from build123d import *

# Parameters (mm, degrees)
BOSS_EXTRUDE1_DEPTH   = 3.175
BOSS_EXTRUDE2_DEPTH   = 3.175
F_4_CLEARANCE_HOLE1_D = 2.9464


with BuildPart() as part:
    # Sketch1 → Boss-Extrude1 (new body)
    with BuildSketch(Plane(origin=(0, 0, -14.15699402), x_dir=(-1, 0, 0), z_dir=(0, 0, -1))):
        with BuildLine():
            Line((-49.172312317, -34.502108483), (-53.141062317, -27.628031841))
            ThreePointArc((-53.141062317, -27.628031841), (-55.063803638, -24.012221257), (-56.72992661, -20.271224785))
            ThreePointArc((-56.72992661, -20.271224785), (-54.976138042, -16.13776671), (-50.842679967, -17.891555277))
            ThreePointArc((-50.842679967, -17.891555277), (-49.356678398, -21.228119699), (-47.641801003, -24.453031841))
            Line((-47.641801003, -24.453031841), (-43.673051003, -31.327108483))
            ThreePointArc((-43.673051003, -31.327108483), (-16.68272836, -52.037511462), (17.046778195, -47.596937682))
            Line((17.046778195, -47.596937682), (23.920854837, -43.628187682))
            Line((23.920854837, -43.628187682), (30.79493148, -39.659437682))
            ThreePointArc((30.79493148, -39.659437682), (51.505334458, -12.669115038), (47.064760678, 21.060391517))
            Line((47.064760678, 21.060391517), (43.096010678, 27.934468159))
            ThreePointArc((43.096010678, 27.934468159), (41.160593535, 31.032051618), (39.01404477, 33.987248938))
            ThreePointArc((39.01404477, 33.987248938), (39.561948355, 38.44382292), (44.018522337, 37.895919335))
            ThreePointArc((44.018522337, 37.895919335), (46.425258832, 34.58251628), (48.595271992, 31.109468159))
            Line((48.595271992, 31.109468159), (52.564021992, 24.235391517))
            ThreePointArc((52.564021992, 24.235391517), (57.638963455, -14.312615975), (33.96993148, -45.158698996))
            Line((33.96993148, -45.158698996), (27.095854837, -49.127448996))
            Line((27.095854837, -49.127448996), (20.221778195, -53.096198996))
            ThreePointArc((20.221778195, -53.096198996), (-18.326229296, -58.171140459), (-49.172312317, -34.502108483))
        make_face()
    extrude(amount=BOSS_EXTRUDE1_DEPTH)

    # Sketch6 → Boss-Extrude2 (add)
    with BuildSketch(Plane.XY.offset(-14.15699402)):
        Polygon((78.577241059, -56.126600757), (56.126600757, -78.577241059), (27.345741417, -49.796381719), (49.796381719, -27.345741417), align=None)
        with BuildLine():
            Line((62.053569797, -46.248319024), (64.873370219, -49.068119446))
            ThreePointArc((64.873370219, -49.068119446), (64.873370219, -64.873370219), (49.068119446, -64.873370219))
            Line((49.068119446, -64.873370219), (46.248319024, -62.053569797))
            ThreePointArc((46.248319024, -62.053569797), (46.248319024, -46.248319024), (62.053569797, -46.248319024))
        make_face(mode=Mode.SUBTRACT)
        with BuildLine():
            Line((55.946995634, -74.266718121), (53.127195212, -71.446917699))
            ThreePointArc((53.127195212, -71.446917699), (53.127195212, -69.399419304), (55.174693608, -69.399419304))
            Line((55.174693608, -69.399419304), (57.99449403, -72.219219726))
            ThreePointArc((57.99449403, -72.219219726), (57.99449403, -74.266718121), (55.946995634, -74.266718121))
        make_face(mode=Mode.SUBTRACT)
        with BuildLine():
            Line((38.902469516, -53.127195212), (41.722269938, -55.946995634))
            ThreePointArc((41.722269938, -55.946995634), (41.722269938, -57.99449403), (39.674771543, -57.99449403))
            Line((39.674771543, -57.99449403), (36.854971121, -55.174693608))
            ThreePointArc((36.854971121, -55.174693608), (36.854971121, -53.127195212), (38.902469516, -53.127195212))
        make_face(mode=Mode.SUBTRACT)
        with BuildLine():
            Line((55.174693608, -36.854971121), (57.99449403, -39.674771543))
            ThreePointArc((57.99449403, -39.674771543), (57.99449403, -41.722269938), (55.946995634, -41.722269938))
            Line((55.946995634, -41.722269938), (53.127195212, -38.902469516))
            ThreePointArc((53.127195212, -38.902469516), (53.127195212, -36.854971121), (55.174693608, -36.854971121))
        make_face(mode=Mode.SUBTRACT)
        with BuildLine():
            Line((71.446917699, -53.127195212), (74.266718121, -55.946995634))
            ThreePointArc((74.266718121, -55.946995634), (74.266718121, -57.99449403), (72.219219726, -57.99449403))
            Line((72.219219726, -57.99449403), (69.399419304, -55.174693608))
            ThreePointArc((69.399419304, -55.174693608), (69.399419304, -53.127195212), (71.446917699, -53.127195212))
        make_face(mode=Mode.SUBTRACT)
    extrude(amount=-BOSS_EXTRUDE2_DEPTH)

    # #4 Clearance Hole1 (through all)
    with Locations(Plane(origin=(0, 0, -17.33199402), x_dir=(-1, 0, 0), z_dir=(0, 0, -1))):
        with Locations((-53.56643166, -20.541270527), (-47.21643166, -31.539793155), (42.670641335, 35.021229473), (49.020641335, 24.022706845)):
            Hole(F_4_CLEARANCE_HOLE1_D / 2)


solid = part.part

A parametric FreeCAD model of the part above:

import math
import FreeCAD as App
import Part
import Sketcher

V = App.Vector
Q = App.Units.Quantity


def add_polygon(sketch, points):
    """Adds a closed chain of lines whose ends are joined by coincident constraints."""
    first, n = sketch.GeometryCount, len(points)
    for a, b in zip(points, points[1:] + points[:1]):
        sketch.addGeometry(Part.LineSegment(App.Vector(*a, 0), App.Vector(*b, 0)), False)
    for i in range(n):
        sketch.addConstraint(Sketcher.Constraint("Coincident", first + i, 2, first + (i + 1) % n, 1))

doc = App.newDocument("Part")
body = doc.addObject("PartDesign::Body", "Body")

sketch1 = body.newObject("Sketcher::SketchObject", "Sketch")
sketch1.AttachmentSupport = (doc.getObject("XY_Plane"), [""])
sketch1.MapMode = "FlatFace"
sketch1.AttachmentOffset = App.Placement(V(0, 0, -14.156994), App.Rotation())
sketch1.addGeometry([
    Part.LineSegment(V(53.1, -27.6, 0), V(49.2, -34.5, 0)),
    Part.ArcOfCircle(Part.Circle(V(5.2, -9.1, 0), V(0, 0, 1), 50.8), math.radians(-120), math.radians(-30)),
    Part.LineSegment(V(-20.2, -53.1, 0), V(-27.1, -49.1, 0)),
    Part.LineSegment(V(-27.1, -49.1, 0), V(-34, -45.2, 0)),
    Part.ArcOfCircle(Part.Circle(V(-8.6, -1.2, 0), V(0, 0, 1), 50.8), math.radians(150), math.radians(240)),
    Part.LineSegment(V(-52.6, 24.2, 0), V(-48.6, 31.1, 0)),
    Part.ArcOfCircle(Part.Circle(V(2.3, 1.7, 0), V(0, 0, 1), 58.7), math.radians(142.01), math.radians(150)),
    Part.ArcOfCircle(Part.Circle(V(-41.5, 35.9, 0), V(0, 0, 1), 3.2), math.radians(-38), math.radians(142)),
    Part.ArcOfCircle(Part.Circle(V(2.3, 1.7, 0), V(0, 0, 1), 52.4), math.radians(142.01), math.radians(150)),
    Part.LineSegment(V(-43.1, 27.9, 0), V(-47.1, 21.1, 0)),
    Part.ArcOfCircle(Part.Circle(V(-8.6, -1.2, 0), V(0, 0, 1), 44.5), math.radians(150), math.radians(240)),
    Part.LineSegment(V(-30.8, -39.7, 0), V(-23.9, -43.6, 0)),
    Part.LineSegment(V(-23.9, -43.6, 0), V(-17, -47.6, 0)),
    Part.ArcOfCircle(Part.Circle(V(5.2, -9.1, 0), V(0, 0, 1), 44.5), math.radians(-120), math.radians(-30)),
    Part.LineSegment(V(43.7, -31.3, 0), V(47.6, -24.5, 0)),
    Part.ArcOfCircle(Part.Circle(V(2.3, 1.7, 0), V(0, 0, 1), 52.4), math.radians(-30), math.radians(-22.01)),
    Part.ArcOfCircle(Part.Circle(V(53.8, -19.1, 0), V(0, 0, 1), 3.2), math.radians(-22), math.radians(158)),
    Part.ArcOfCircle(Part.Circle(V(2.3, 1.7, 0), V(0, 0, 1), 58.7), math.radians(-30), math.radians(-22.01)),
], False)
sketch1.addConstraint([
    Sketcher.Constraint("Tangent", 0, 2, 1, 2),
    Sketcher.Constraint("Tangent", 1, 1, 2, 1),
    Sketcher.Constraint("Coincident", 2, 2, 3, 1),
    Sketcher.Constraint("Tangent", 3, 2, 4, 2),
    Sketcher.Constraint("Tangent", 4, 1, 5, 1),
    Sketcher.Constraint("Tangent", 5, 2, 6, 2),
    Sketcher.Constraint("Tangent", 6, 1, 7, 2),
    Sketcher.Constraint("Tangent", 7, 1, 8, 1),
    Sketcher.Constraint("Tangent", 8, 2, 9, 1),
    Sketcher.Constraint("Tangent", 9, 2, 10, 1),
    Sketcher.Constraint("Tangent", 10, 2, 11, 1),
    Sketcher.Constraint("Coincident", 11, 2, 12, 1),
    Sketcher.Constraint("Tangent", 12, 2, 13, 1),
    Sketcher.Constraint("Tangent", 13, 2, 14, 1),
    Sketcher.Constraint("Tangent", 14, 2, 15, 1),
    Sketcher.Constraint("Tangent", 15, 2, 16, 2),
    Sketcher.Constraint("Tangent", 16, 1, 17, 2),
    Sketcher.Constraint("Tangent", 17, 1, 0, 1),
    Sketcher.Constraint("Coincident", 8, 3, 6, 3),
    Sketcher.Constraint("Coincident", 10, 3, 4, 3),
    Sketcher.Constraint("Coincident", 13, 3, 1, 3),
    Sketcher.Constraint("Coincident", 15, 3, 6, 3),
    Sketcher.Constraint("Coincident", 17, 3, 6, 3),
    Sketcher.Constraint("Equal", 1, 4),
    Sketcher.Constraint("Equal", 10, 13),
    Sketcher.Constraint("Equal", 8, 15),
    Sketcher.Constraint("Equal", 7, 16),
    Sketcher.Constraint("Perpendicular", 0, 2),
    Sketcher.Constraint("Parallel", 2, 3),
    Sketcher.Constraint("Perpendicular", 3, 5),
    Sketcher.Constraint("Parallel", 5, 9),
    Sketcher.Constraint("Perpendicular", 9, 11),
    Sketcher.Constraint("Equal", 0, 2),
    Sketcher.Constraint("Equal", 2, 3),
    Sketcher.Constraint("Equal", 9, 11),
    Sketcher.Constraint("Radius", 1, Q("2 in")),
    Sketcher.Constraint("Radius", 10, Q("1.75 in")),
    Sketcher.Constraint("Angle", 0, Q("-120 deg")),
    Sketcher.Constraint("Radius", 6, Q("2.3125 in")),
    Sketcher.Constraint("DistanceY", 1, 1, -1, 1, 53.096199),
    Sketcher.Constraint("DistanceX", -1, 1, 14, 2, 47.641801),
    Sketcher.Constraint("DistanceX", 4, 1, 6, 1, 8.5455),
    Sketcher.Constraint("DistanceY", 16, 3, -1, 1, 19.08139),
])
pad1 = body.newObject("PartDesign::Pad", "Pad")
pad1.Profile = sketch1
pad1.Length = Q("0.125 in")
pad1.Reversed = True

sketch2 = body.newObject("Sketcher::SketchObject", "Sketch001")
sketch2.AttachmentSupport = (doc.getObject("XY_Plane"), [""])
sketch2.MapMode = "FlatFace"
sketch2.AttachmentOffset = App.Placement(V(0, 0, -14.156994), App.Rotation())
add_polygon(sketch2, [(56.1, -78.6), (78.6, -56.1), (49.8, -27.3), (27.3, -49.8)])
sketch2.addGeometry(Part.LineSegment(V(62.1, -46.2, 0), V(64.9, -49.1, 0)), False)
sketch2.addGeometry(Part.ArcOfCircle(Part.Circle(V(57, -57, 0), V(0, 0, 1), 11.2), math.radians(-135), math.radians(45)), False)
sketch2.addGeometry(Part.LineSegment(V(49.1, -64.9, 0), V(46.2, -62.1, 0)), False)
sketch2.addGeometry(Part.ArcOfCircle(Part.Circle(V(54.2, -54.2, 0), V(0, 0, 1), 11.2), math.radians(45), math.radians(225)), False)
sketch2.addGeometry(Part.LineSegment(V(55.9, -74.3, 0), V(53.1, -71.4, 0)), False)
sketch2.addGeometry(Part.ArcOfCircle(Part.Circle(V(54.2, -70.4, 0), V(0, 0, 1), 1.4), math.radians(45), math.radians(225)), False)
sketch2.addGeometry(Part.LineSegment(V(55.2, -69.4, 0), V(58, -72.2, 0)), False)
sketch2.addGeometry(Part.ArcOfCircle(Part.Circle(V(57, -73.2, 0), V(0, 0, 1), 1.4), math.radians(-135), math.radians(45)), False)
sketch2.addGeometry(Part.LineSegment(V(71.4, -53.1, 0), V(74.3, -55.9, 0)), False)
sketch2.addGeometry(Part.ArcOfCircle(Part.Circle(V(73.2, -57, 0), V(0, 0, 1), 1.4), math.radians(-135), math.radians(45)), False)
sketch2.addGeometry(Part.LineSegment(V(72.2, -58, 0), V(69.4, -55.2, 0)), False)
sketch2.addGeometry(Part.ArcOfCircle(Part.Circle(V(70.4, -54.2, 0), V(0, 0, 1), 1.4), math.radians(45), math.radians(225)), False)
sketch2.addGeometry(Part.LineSegment(V(38.9, -53.1, 0), V(41.7, -55.9, 0)), False)
sketch2.addGeometry(Part.ArcOfCircle(Part.Circle(V(40.7, -57, 0), V(0, 0, 1), 1.4), math.radians(-135), math.radians(45)), False)
sketch2.addGeometry(Part.LineSegment(V(39.7, -58, 0), V(36.9, -55.2, 0)), False)
sketch2.addGeometry(Part.ArcOfCircle(Part.Circle(V(37.9, -54.2, 0), V(0, 0, 1), 1.4), math.radians(45), math.radians(225)), False)
sketch2.addGeometry(Part.LineSegment(V(55.2, -36.9, 0), V(58, -39.7, 0)), False)
sketch2.addGeometry(Part.ArcOfCircle(Part.Circle(V(57, -40.7, 0), V(0, 0, 1), 1.4), math.radians(-135), math.radians(45)), False)
sketch2.addGeometry(Part.LineSegment(V(55.9, -41.7, 0), V(53.1, -38.9, 0)), False)
sketch2.addGeometry(Part.ArcOfCircle(Part.Circle(V(54.2, -37.9, 0), V(0, 0, 1), 1.4), math.radians(45), math.radians(225)), False)
sketch2.addConstraint([
    Sketcher.Constraint("Tangent", 4, 2, 5, 2),
    Sketcher.Constraint("Tangent", 5, 1, 6, 1),
    Sketcher.Constraint("Tangent", 6, 2, 7, 2),
    Sketcher.Constraint("Tangent", 7, 1, 4, 1),
    Sketcher.Constraint("Tangent", 8, 2, 9, 2),
    Sketcher.Constraint("Tangent", 9, 1, 10, 1),
    Sketcher.Constraint("Tangent", 10, 2, 11, 2),
    Sketcher.Constraint("Tangent", 11, 1, 8, 1),
    Sketcher.Constraint("Tangent", 12, 2, 13, 2),
    Sketcher.Constraint("Tangent", 13, 1, 14, 1),
    Sketcher.Constraint("Tangent", 14, 2, 15, 2),
    Sketcher.Constraint("Tangent", 15, 1, 12, 1),
    Sketcher.Constraint("Tangent", 16, 2, 17, 2),
    Sketcher.Constraint("Tangent", 17, 1, 18, 1),
    Sketcher.Constraint("Tangent", 18, 2, 19, 2),
    Sketcher.Constraint("Tangent", 19, 1, 16, 1),
    Sketcher.Constraint("Tangent", 20, 2, 21, 2),
    Sketcher.Constraint("Tangent", 21, 1, 22, 1),
    Sketcher.Constraint("Tangent", 22, 2, 23, 2),
    Sketcher.Constraint("Tangent", 23, 1, 20, 1),
    Sketcher.Constraint("Equal", 5, 7),
    Sketcher.Constraint("Equal", 9, 11),
    Sketcher.Constraint("Equal", 11, 13),
    Sketcher.Constraint("Equal", 13, 15),
    Sketcher.Constraint("Equal", 15, 17),
    Sketcher.Constraint("Equal", 17, 19),
    Sketcher.Constraint("Equal", 19, 21),
    Sketcher.Constraint("Equal", 21, 23),
    Sketcher.Constraint("Perpendicular", 0, 1),
    Sketcher.Constraint("Perpendicular", 1, 2),
    Sketcher.Constraint("Perpendicular", 2, 3),
    Sketcher.Constraint("Parallel", 3, 4),
    Sketcher.Constraint("Parallel", 6, 8),
    Sketcher.Constraint("Parallel", 10, 12),
    Sketcher.Constraint("Parallel", 14, 16),
    Sketcher.Constraint("Parallel", 18, 20),
    Sketcher.Constraint("Horizontal", 5, 3, 13, 3),
    Sketcher.Constraint("Horizontal", 7, 3, 15, 3),
    Sketcher.Constraint("Horizontal", 13, 3, 17, 3),
    Sketcher.Constraint("Horizontal", 15, 3, 19, 3),
    Sketcher.Constraint("Vertical", 7, 3, 9, 3),
    Sketcher.Constraint("Vertical", 5, 3, 11, 3),
    Sketcher.Constraint("Vertical", 11, 3, 21, 3),
    Sketcher.Constraint("Vertical", 9, 3, 23, 3),
    Sketcher.Constraint("Radius", 5, Q("0.44 in")),
    Sketcher.Constraint("Angle", 0, Q("45 deg")),
    Sketcher.Constraint("Radius", 9, Q("0.057 in")),
    Sketcher.Constraint("Distance", 0, Q("1.25 in")),
    Sketcher.Constraint("Distance", 4, Q("0.157 in")),
    Sketcher.Constraint("DistanceX", -1, 1, 6, 2, Q("1.8208 in")),
    Sketcher.Constraint("DistanceY", 7, 1, -1, 1, Q("1.8208 in")),
    Sketcher.Constraint("DistanceY", 21, 3, 1, 2, Q("0.5257 in")),
    Sketcher.Constraint("DistanceX", 2, 2, 17, 3, Q("0.5257 in")),
    Sketcher.Constraint("DistanceY", 0, 2, -1, 1, 56.126601),
    Sketcher.Constraint("DistanceX", -1, 1, 3, 2, 56.126601),
    Sketcher.Constraint("DistanceX", 4, 2, 15, 3, 5.549798),
    Sketcher.Constraint("DistanceY", 4, 2, 21, 3, 8.369599),
    Sketcher.Constraint("DistanceY", 9, 3, 5, 1, 5.549798),
])
pad2 = body.newObject("PartDesign::Pad", "Pad001")
pad2.Profile = sketch2
pad2.Length = Q("0.125 in")
pad2.Reversed = True

sketch3 = body.newObject("Sketcher::SketchObject", "Sketch002")
sketch3.AttachmentSupport = (doc.getObject("XY_Plane"), [""])
sketch3.MapMode = "FlatFace"
sketch3.AttachmentOffset = App.Placement(V(0, 0, -17.331994), App.Rotation())
sketch3.addGeometry([
    Part.Circle(V(53.6, -20.5, 0), V(0, 0, 1), 1.5),
    Part.Circle(V(47.2, -31.5, 0), V(0, 0, 1), 1.5),
    Part.Circle(V(-42.7, 35, 0), V(0, 0, 1), 1.5),
    Part.Circle(V(-49, 24, 0), V(0, 0, 1), 1.5),
], False)
sketch3.addConstraint([
    Sketcher.Constraint("Equal", 0, 1),
    Sketcher.Constraint("Equal", 1, 2),
    Sketcher.Constraint("Equal", 2, 3),
    Sketcher.Constraint("Diameter", 0, Q("0.116 in")),
    Sketcher.Constraint("DistanceX", 1, 3, 0, 3, Q("0.25 in")),
    Sketcher.Constraint("DistanceX", 3, 3, 2, 3, Q("0.25 in")),
    Sketcher.Constraint("DistanceY", 0, 3, 2, 3, Q("2.1875 in")),
    Sketcher.Constraint("DistanceY", 1, 3, 3, 3, Q("2.1875 in")),
    Sketcher.Constraint("DistanceX", -1, 1, 0, 3, 53.566432),
    Sketcher.Constraint("DistanceY", 0, 3, -1, 1, 20.541271),
    Sketcher.Constraint("DistanceX", 2, 3, -1, 1, 42.670641),
    Sketcher.Constraint("DistanceY", 1, 3, -1, 1, 31.539793),
])
doc.recompute()
hole = body.newObject("PartDesign::Hole", "Hole")
hole.Profile = sketch3
hole.ThreadType = "None"
hole.Diameter = Q("0.116 in")
hole.DepthType = "ThroughAll"
hole.Reversed = True

doc.recompute()
